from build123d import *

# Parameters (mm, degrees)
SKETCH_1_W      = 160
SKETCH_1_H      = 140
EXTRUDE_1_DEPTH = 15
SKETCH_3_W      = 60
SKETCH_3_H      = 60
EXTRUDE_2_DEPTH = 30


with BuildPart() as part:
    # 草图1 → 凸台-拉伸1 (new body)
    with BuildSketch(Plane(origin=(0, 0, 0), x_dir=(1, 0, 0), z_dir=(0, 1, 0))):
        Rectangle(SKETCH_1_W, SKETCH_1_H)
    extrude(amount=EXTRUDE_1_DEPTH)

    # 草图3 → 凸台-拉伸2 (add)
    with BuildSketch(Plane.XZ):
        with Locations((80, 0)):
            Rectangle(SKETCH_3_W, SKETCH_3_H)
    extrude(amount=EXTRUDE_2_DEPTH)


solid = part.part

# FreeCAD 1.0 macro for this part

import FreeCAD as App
import Part
import Sketcher
Q = App.Units.Quantity

doc = App.newDocument("Part")
body = doc.addObject("PartDesign::Body", "Body")

# Sketch on XZ plane
sketch1 = doc.addObject("Sketcher::SketchObject", "Sketch")
body.addObject(sketch1)
sketch1.AttachmentSupport = (doc.XZ_Plane, [""])
sketch1.MapMode = "FlatFace"
sketch1.addGeometry([
    Part.LineSegment(App.Vector(-80, -70, 0), App.Vector(-80, 70, 0)),
    Part.LineSegment(App.Vector(-80, 70, 0), App.Vector(80, 70, 0)),
    Part.LineSegment(App.Vector(80, 70, 0), App.Vector(80, -70, 0)),
    Part.LineSegment(App.Vector(80, -70, 0), App.Vector(-80, -70, 0)),
], False)
sketch1.addConstraint([
    Sketcher.Constraint("Coincident", 0, 2, 1, 1),
    Sketcher.Constraint("Coincident", 1, 2, 2, 1),
    Sketcher.Constraint("Coincident", 2, 2, 3, 1),
    Sketcher.Constraint("Coincident", 3, 2, 0, 1),
    Sketcher.Constraint("Vertical", 0),
    Sketcher.Constraint("Horizontal", 1),
    Sketcher.Constraint("Vertical", 2),
    Sketcher.Constraint("Horizontal", 3),
    Sketcher.Constraint("Symmetric", 0, 2, 2, 2, -1, 1),
    Sketcher.Constraint("DistanceX", 1, 1, 1, 2, Q("160 mm")),
    Sketcher.Constraint("DistanceY", 0, 1, 0, 2, Q("140 mm")),
])
pad1 = doc.addObject("PartDesign::Pad", "Pad")
body.addObject(pad1)
pad1.Profile = sketch1
pad1.Length = 15
pad1.Reversed = True

# Sketch on XZ plane
sketch2 = doc.addObject("Sketcher::SketchObject", "Sketch001")
body.addObject(sketch2)
sketch2.AttachmentSupport = (doc.XZ_Plane, [""])
sketch2.MapMode = "FlatFace"
sketch2.addGeometry([
    Part.LineSegment(App.Vector(50, 30, 0), App.Vector(50, -30, 0)),
    Part.LineSegment(App.Vector(50, -30, 0), App.Vector(110, -30, 0)),
    Part.LineSegment(App.Vector(110, -30, 0), App.Vector(110, 30, 0)),
    Part.LineSegment(App.Vector(110, 30, 0), App.Vector(50, 30, 0)),
], False)
sketch2.addConstraint([
    Sketcher.Constraint("Coincident", 0, 2, 1, 1),
    Sketcher.Constraint("Coincident", 1, 2, 2, 1),
    Sketcher.Constraint("Coincident", 2, 2, 3, 1),
    Sketcher.Constraint("Coincident", 3, 2, 0, 1),
    Sketcher.Constraint("Vertical", 0),
    Sketcher.Constraint("Horizontal", 1),
    Sketcher.Constraint("Vertical", 2),
    Sketcher.Constraint("Horizontal", 3),
    Sketcher.Constraint("Equal", 3, 0),
    Sketcher.Constraint("DistanceX", 1, 1, 1, 2, Q("60 mm")),
    Sketcher.Constraint("DistanceX", -1, 1, 0, 2, Q("50 mm")),
    Sketcher.Constraint("DistanceY", 0, 2, -1, 1, Q("30 mm")),
])
pad2 = doc.addObject("PartDesign::Pad", "Pad001")
body.addObject(pad2)
pad2.Profile = sketch2
pad2.Length = 30

doc.recompute()
